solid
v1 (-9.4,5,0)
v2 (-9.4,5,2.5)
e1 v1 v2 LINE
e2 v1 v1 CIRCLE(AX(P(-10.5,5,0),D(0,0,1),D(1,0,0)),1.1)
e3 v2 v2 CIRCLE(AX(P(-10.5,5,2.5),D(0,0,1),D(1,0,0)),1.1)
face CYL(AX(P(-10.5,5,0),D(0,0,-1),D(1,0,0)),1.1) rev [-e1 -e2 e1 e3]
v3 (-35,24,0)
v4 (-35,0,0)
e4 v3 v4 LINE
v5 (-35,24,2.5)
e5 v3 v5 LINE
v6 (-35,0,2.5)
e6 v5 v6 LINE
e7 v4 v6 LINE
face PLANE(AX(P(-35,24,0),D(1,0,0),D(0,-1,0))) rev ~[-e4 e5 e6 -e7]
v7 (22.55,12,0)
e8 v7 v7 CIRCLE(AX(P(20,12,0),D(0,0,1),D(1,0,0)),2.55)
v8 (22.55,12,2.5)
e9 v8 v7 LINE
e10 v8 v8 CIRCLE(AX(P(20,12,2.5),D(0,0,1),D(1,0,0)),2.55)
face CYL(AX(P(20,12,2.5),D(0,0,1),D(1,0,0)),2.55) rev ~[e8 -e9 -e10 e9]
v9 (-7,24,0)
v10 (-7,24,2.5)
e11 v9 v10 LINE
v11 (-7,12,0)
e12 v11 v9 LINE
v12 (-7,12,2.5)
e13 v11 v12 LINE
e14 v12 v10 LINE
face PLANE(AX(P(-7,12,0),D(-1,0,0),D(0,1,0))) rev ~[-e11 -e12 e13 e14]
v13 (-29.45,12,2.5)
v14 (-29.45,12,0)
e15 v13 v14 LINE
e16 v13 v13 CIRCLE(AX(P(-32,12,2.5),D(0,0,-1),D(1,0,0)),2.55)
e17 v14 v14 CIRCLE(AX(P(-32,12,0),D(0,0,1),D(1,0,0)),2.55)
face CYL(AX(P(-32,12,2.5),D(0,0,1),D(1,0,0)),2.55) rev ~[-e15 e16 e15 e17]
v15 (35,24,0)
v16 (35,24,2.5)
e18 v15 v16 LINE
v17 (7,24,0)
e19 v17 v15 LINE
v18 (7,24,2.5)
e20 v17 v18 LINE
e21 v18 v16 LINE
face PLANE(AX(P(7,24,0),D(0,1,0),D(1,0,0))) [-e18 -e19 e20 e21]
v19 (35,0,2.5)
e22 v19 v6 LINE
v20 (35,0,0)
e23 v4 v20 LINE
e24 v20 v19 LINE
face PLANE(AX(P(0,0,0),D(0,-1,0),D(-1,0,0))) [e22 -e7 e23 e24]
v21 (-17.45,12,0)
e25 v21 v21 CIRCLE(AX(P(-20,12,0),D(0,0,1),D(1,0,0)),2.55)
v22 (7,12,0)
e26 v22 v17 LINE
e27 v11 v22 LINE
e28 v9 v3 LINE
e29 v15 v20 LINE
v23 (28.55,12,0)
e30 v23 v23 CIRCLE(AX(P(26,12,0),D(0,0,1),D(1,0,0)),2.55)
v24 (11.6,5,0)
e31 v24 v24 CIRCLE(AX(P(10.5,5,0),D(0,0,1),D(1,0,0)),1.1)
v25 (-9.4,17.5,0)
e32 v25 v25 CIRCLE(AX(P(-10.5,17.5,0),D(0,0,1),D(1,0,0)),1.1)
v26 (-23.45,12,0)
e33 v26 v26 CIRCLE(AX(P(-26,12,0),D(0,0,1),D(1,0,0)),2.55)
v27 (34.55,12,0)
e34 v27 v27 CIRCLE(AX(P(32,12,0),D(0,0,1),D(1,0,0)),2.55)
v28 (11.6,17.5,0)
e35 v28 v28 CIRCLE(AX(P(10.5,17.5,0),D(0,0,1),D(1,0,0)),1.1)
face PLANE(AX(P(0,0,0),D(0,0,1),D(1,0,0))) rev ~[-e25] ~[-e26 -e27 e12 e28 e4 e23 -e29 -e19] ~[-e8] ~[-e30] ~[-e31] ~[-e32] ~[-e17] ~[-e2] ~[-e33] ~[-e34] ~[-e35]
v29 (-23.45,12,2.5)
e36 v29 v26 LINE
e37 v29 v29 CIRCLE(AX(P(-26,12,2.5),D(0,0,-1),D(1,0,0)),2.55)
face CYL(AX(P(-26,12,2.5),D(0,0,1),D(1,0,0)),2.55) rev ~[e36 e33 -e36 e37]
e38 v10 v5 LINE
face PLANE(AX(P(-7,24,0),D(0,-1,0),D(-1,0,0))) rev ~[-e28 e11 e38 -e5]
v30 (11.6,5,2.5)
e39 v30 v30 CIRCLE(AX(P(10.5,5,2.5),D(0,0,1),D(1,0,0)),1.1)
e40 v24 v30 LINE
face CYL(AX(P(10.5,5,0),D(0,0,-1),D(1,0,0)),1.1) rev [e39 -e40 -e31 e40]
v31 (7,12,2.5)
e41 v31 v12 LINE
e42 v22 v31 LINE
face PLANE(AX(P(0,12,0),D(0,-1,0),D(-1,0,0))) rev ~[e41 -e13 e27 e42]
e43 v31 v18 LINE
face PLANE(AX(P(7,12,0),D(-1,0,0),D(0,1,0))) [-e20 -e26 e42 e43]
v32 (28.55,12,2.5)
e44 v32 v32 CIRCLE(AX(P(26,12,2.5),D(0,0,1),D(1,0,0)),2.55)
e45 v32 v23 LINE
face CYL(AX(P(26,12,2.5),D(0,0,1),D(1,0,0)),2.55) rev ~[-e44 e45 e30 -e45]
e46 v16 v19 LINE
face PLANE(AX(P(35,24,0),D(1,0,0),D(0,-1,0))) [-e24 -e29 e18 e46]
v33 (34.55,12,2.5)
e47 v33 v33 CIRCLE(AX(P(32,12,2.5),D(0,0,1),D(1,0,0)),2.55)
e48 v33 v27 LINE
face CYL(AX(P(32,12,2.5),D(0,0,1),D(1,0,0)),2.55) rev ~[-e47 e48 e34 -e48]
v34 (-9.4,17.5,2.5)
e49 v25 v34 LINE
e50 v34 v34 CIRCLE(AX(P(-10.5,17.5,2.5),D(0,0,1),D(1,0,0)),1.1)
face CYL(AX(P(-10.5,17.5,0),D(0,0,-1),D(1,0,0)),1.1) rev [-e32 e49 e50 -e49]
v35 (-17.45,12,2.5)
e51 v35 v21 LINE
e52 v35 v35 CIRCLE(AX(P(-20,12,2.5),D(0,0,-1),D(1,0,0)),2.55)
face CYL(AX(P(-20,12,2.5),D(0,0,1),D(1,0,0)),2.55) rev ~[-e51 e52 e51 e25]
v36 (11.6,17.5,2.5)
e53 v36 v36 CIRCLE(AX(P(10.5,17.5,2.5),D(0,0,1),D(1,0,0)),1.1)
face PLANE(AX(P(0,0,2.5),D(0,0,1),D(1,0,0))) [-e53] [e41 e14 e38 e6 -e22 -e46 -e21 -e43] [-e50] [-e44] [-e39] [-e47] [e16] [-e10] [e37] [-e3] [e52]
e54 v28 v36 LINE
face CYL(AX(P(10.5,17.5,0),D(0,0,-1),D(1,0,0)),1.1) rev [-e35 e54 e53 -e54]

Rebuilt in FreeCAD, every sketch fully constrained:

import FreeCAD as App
import Part
import Sketcher
from FreeCAD import Vector
Q = App.Units.Quantity


def add_polygon(sketch, points):
    """Adds a closed chain of lines whose ends are joined by coincident constraints."""
    first, n = sketch.GeometryCount, len(points)
    for a, b in zip(points, points[1:] + points[:1]):
        sketch.addGeometry(Part.LineSegment(App.Vector(*a, 0), App.Vector(*b, 0)), False)
    for i in range(n):
        sketch.addConstraint(Sketcher.Constraint("Coincident", first + i, 2, first + (i + 1) % n, 1))

doc = App.newDocument("Part")
params = doc.addObject("Spreadsheet::Sheet", "Params")
for row, (alias, value) in enumerate([
    ("sketch1_diameter", "2.2 mm"),
    ("sketch1_height", "12 mm"),
    ("pad1_length", "2.5 mm"),
    ("sketch2_diameter", "5.1 mm"),
], start=1):
    params.set(f"A{row}", alias)
    params.set(f"B{row}", "=" + value)
    params.setAlias(f"B{row}", alias)

body = doc.addObject("PartDesign::Body", "Body")

# Sketch on XY plane
sketch1 = doc.addObject("Sketcher::SketchObject", "Sketch")
body.addObject(sketch1)
sketch1.AttachmentSupport = (doc.XY_Plane, [""])
sketch1.MapMode = "FlatFace"
add_polygon(sketch1, [(-35, 0), (35, 0), (35, 24), (7, 24), (7, 12), (-7, 12), (-7, 24), (-35, 24)])  # lines 0-7
sketch1.addGeometry(Part.Circle(Vector(-10.5, 5, 0), Vector(0, 0, 1), 1.1), False)  # 8
sketch1.addGeometry(Part.Circle(Vector(-10.5, 17.5, 0), Vector(0, 0, 1), 1.1), False)  # 9
sketch1.addGeometry(Part.Circle(Vector(10.5, 17.5, 0), Vector(0, 0, 1), 1.1), False)  # 10
sketch1.addGeometry(Part.Circle(Vector(10.5, 5, 0), Vector(0, 0, 1), 1.1), False)  # 11
sketch1.addConstraint(Sketcher.Constraint("Horizontal", 0))
sketch1.addConstraint(Sketcher.Constraint("Vertical", 1))
sketch1.addConstraint(Sketcher.Constraint("Horizontal", 2))
sketch1.addConstraint(Sketcher.Constraint("Vertical", 3))
sketch1.addConstraint(Sketcher.Constraint("Horizontal", 4))
sketch1.addConstraint(Sketcher.Constraint("Vertical", 5))
sketch1.addConstraint(Sketcher.Constraint("Horizontal", 6))
sketch1.addConstraint(Sketcher.Constraint("Vertical", 7))
sketch1.addConstraint(Sketcher.Constraint("Equal", 8, 9))
sketch1.addConstraint(Sketcher.Constraint("Equal", 9, 10))
sketch1.addConstraint(Sketcher.Constraint("Equal", 10, 11))
sketch1.addConstraint(Sketcher.Constraint("Symmetric", 0, 2, 7, 2, -1, 1))
sketch1.addConstraint(Sketcher.Constraint("Symmetric", 9, 3, 10, 3, -2))
sketch1.addConstraint(Sketcher.Constraint("Symmetric", 8, 3, 11, 3, -2))
sketch1.addConstraint(Sketcher.Constraint("Symmetric", 2, 2, 5, 2, -2))
sketch1.addConstraint(Sketcher.Constraint("Vertical", 8, 3, 9, 3))
sketch1.addConstraint(Sketcher.Constraint("Diameter", 8, Q("2.2 mm")))
sketch1.addConstraint(Sketcher.Constraint("DistanceY", 3, 2, 3, 1, Q("12 mm")))
sketch1.addConstraint(Sketcher.Constraint("DistanceY", -1, 1, 8, 3, Q("5 mm")))
sketch1.addConstraint(Sketcher.Constraint("DistanceX", -1, 1, 0, 2, Q("35 mm")))
sketch1.addConstraint(Sketcher.Constraint("DistanceX", -1, 1, 2, 2, Q("7 mm")))
sketch1.addConstraint(Sketcher.Constraint("DistanceY", -1, 1, 3, 2, Q("12 mm")))
sketch1.addConstraint(Sketcher.Constraint("DistanceX", 8, 3, -1, 1, Q("10.5 mm")))
sketch1.addConstraint(Sketcher.Constraint("DistanceY", 8, 3, 9, 3, Q("12.5 mm")))
sketch1.setExpression("Constraints[24]", "Params.sketch1_diameter")
sketch1.setExpression("Constraints[25]", "Params.sketch1_height")
pad1 = doc.addObject("PartDesign::Pad", "Pad")
body.addObject(pad1)
pad1.Profile = sketch1
pad1.setExpression("Length", "Params.pad1_length")

# Sketch on XY plane
sketch2 = doc.addObject("Sketcher::SketchObject", "Sketch001")
body.addObject(sketch2)
sketch2.AttachmentSupport = (doc.XY_Plane, [""])
sketch2.MapMode = "FlatFace"
sketch2.AttachmentOffset = App.Placement(Vector(0, 0, 2.5), App.Rotation())
sketch2.addGeometry(Part.Circle(Vector(-20, 12, 0), Vector(0, 0, 1), 2.5), False)
sketch2.addGeometry(Part.Circle(Vector(-32, 12, 0), Vector(0, 0, 1), 2.5), False)
sketch2.addGeometry(Part.Circle(Vector(-26, 12, 0), Vector(0, 0, 1), 2.5), False)
sketch2.addGeometry(Part.Circle(Vector(32, 12, 0), Vector(0, 0, 1), 2.5), False)
sketch2.addGeometry(Part.Circle(Vector(26, 12, 0), Vector(0, 0, 1), 2.5), False)
sketch2.addGeometry(Part.Circle(Vector(20, 12, 0), Vector(0, 0, 1), 2.5), False)
sketch2.addConstraint(Sketcher.Constraint("Equal", 0, 1))
sketch2.addConstraint(Sketcher.Constraint("Equal", 1, 2))
sketch2.addConstraint(Sketcher.Constraint("Equal", 2, 3))
sketch2.addConstraint(Sketcher.Constraint("Equal", 3, 4))
sketch2.addConstraint(Sketcher.Constraint("Equal", 4, 5))
sketch2.addConstraint(Sketcher.Constraint("Symmetric", 1, 3, 3, 3, -2))
sketch2.addConstraint(Sketcher.Constraint("Symmetric", 2, 3, 4, 3, -2))
sketch2.addConstraint(Sketcher.Constraint("Symmetric", 0, 3, 5, 3, -2))
sketch2.addConstraint(Sketcher.Constraint("Horizontal", 0, 3, 1, 3))
sketch2.addConstraint(Sketcher.Constraint("Horizontal", 1, 3, 2, 3))
sketch2.addConstraint(Sketcher.Constraint("Diameter", 0, Q("5.1 mm")))
sketch2.addConstraint(Sketcher.Constraint("DistanceX", 2, 3, 0, 3, Q("6 mm")))
sketch2.addConstraint(Sketcher.Constraint("DistanceX", 1, 3, 2, 3, Q("6 mm")))
sketch2.addConstraint(Sketcher.Constraint("DistanceX", 0, 3, -1, 1, Q("20 mm")))
sketch2.addConstraint(Sketcher.Constraint("DistanceY", -1, 1, 0, 3, Q("12 mm")))
sketch2.setExpression("Constraints[10]", "Params.sketch2_diameter")
pocket1 = doc.addObject("PartDesign::Pocket", "Pocket")
body.addObject(pocket1)
pocket1.Profile = sketch2
pocket1.Type = "ThroughAll"

doc.recompute()
